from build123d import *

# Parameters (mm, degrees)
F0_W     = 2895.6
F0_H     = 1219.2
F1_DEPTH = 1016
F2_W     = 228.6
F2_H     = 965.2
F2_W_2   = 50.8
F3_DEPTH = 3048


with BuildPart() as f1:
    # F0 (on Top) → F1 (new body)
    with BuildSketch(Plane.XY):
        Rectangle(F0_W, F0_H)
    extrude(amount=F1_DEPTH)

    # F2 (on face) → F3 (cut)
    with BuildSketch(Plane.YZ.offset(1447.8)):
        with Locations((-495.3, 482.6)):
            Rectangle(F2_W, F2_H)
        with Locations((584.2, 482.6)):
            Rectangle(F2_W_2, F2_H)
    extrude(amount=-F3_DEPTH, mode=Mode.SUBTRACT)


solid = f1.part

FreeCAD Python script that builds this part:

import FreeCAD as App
import Part
import Sketcher

V = App.Vector
Q = App.Units.Quantity

doc = App.newDocument("Part")
params = doc.addObject("Spreadsheet::Sheet", "Params")
for row, (alias, value) in enumerate([
    ("sketch1_width", "114 in"),
    ("sketch1_height", "48 in"),
    ("pad1_length", "40 in"),
    ("sketch2_width", "9 in"),
    ("sketch2_width2", "2 in"),
    ("sketch2_height", "38 in"),
    ("pocket1_length", "120 in"),
], start=1):
    params.set(f"A{row}", alias)
    params.set(f"B{row}", "=" + value)
    params.setAlias(f"B{row}", alias)

body = doc.addObject("PartDesign::Body", "Body")

# Sketch on XY plane
sketch1 = body.newObject("Sketcher::SketchObject", "Sketch")
sketch1.AttachmentSupport = (doc.getObject("XY_Plane"), [""])
sketch1.MapMode = "FlatFace"
sketch1.addGeometry([
    Part.LineSegment(V(-1448, 610, 0), V(-1448, -610, 0)),
    Part.LineSegment(V(-1448, -610, 0), V(1448, -610, 0)),
    Part.LineSegment(V(1448, -610, 0), V(1448, 610, 0)),
    Part.LineSegment(V(1448, 610, 0), V(-1448, 610, 0)),
], False)
sketch1.addConstraint([
    Sketcher.Constraint("Coincident", 0, 2, 1, 1),
    Sketcher.Constraint("Coincident", 1, 2, 2, 1),
    Sketcher.Constraint("Coincident", 2, 2, 3, 1),
    Sketcher.Constraint("Coincident", 3, 2, 0, 1),
    Sketcher.Constraint("Vertical", 0),
    Sketcher.Constraint("Horizontal", 1),
    Sketcher.Constraint("Vertical", 2),
    Sketcher.Constraint("Horizontal", 3),
    Sketcher.Constraint("Symmetric", 0, 2, 2, 2, -1, 1),
    Sketcher.Constraint("DistanceX", 1, 1, 1, 2, Q("114 in")),
    Sketcher.Constraint("DistanceY", 0, 2, 0, 1, Q("48 in")),
])
sketch1.setExpression("Constraints[9]", "Params.sketch1_width")
sketch1.setExpression("Constraints[10]", "Params.sketch1_height")
pad1 = body.newObject("PartDesign::Pad", "Pad")
pad1.Profile = sketch1
pad1.setExpression("Length", "Params.pad1_length")

# Sketch on YZ plane
sketch2 = body.newObject("Sketcher::SketchObject", "Sketch001")
sketch2.AttachmentSupport = (doc.getObject("YZ_Plane"), [""])
sketch2.MapMode = "FlatFace"
sketch2.AttachmentOffset = App.Placement(V(0, 0, 57 * 25.4), App.Rotation())
sketch2.addGeometry([
    Part.LineSegment(V(-610, 965, 0), V(-610, 0, 0)),  # 0
    Part.LineSegment(V(-610, 0, 0), V(-381, 0, 0)),  # 1
    Part.LineSegment(V(-381, 0, 0), V(-381, 965, 0)),  # 2
    Part.LineSegment(V(-381, 965, 0), V(-610, 965, 0)),  # 3
    Part.LineSegment(V(559, 965, 0), V(559, 0, 0)),  # 4
    Part.LineSegment(V(559, 0, 0), V(610, 0, 0)),  # 5
    Part.LineSegment(V(610, 0, 0), V(610, 965, 0)),  # 6
    Part.LineSegment(V(610, 965, 0), V(559, 965, 0)),  # 7
], False)
sketch2.addConstraint([
    Sketcher.Constraint("Coincident", 0, 2, 1, 1),
    Sketcher.Constraint("Coincident", 1, 2, 2, 1),
    Sketcher.Constraint("Coincident", 2, 2, 3, 1),
    Sketcher.Constraint("Coincident", 3, 2, 0, 1),
    Sketcher.Constraint("Coincident", 4, 2, 5, 1),
    Sketcher.Constraint("Coincident", 5, 2, 6, 1),
    Sketcher.Constraint("Coincident", 6, 2, 7, 1),
    Sketcher.Constraint("Coincident", 7, 2, 4, 1),
    Sketcher.Constraint("Vertical", 0),
    Sketcher.Constraint("Horizontal", 1),
    Sketcher.Constraint("Vertical", 2),
    Sketcher.Constraint("Horizontal", 3),
    Sketcher.Constraint("Vertical", 4),
    Sketcher.Constraint("Horizontal", 5),
    Sketcher.Constraint("Vertical", 6),
    Sketcher.Constraint("Horizontal", 7),
    Sketcher.Constraint("Symmetric", 0, 2, 5, 2, -1, 1),
    Sketcher.Constraint("PointOnObject", 0, 2, -1),
    Sketcher.Constraint("Horizontal", 3, 2, 6, 2),
    Sketcher.Constraint("DistanceX", 1, 1, 1, 2, Q("9 in")),
    Sketcher.Constraint("DistanceX", 5, 1, 5, 2, Q("2 in")),
    Sketcher.Constraint("DistanceY", 0, 2, 0, 1, Q("38 in")),
    Sketcher.Constraint("DistanceX", 0, 2, -1, 1, Q("24 in")),
])
sketch2.setExpression("Constraints[19]", "Params.sketch2_width")
sketch2.setExpression("Constraints[20]", "Params.sketch2_width2")
sketch2.setExpression("Constraints[21]", "Params.sketch2_height")
pocket1 = body.newObject("PartDesign::Pocket", "Pocket")
pocket1.Profile = sketch2
pocket1.setExpression("Length", "Params.pocket1_length")

doc.recompute()
